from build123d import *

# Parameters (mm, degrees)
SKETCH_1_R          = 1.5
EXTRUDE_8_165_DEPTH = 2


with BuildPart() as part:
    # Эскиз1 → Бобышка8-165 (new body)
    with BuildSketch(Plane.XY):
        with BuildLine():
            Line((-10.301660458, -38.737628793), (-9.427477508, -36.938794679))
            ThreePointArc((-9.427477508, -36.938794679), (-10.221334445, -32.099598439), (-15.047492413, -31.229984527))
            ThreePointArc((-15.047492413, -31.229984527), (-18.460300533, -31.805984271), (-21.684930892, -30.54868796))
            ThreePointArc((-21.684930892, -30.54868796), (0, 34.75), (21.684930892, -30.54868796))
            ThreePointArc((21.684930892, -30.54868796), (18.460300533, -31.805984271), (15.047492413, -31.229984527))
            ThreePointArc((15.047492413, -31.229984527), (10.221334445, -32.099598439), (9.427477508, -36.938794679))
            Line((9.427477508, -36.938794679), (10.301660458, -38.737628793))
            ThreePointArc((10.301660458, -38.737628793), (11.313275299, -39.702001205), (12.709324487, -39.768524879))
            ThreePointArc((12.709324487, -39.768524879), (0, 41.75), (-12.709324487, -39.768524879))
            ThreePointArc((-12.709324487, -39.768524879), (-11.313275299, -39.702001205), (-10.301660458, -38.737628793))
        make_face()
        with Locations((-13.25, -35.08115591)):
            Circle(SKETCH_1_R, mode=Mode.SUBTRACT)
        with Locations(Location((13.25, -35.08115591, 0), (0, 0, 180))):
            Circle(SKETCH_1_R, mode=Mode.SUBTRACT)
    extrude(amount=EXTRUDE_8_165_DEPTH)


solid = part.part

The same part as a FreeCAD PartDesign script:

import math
import FreeCAD as App
import Part
import Sketcher
from FreeCAD import Vector

doc = App.newDocument("Part")
body = doc.addObject("PartDesign::Body", "Body")

sketch1 = body.newObject("Sketcher::SketchObject", "Sketch")
sketch1.AttachmentSupport = (doc.getObject("XY_Plane"), [""])
sketch1.MapMode = "FlatFace"
sketch1.addGeometry([
    Part.LineSegment(Vector(-10.30166, -38.737629, 0), Vector(-9.427478, -36.938795, 0)),
    Part.ArcOfCircle(Part.Circle(Vector(-13.25, -35.081156, 0), Vector(0, 0, 1), 4.25), math.radians(-25.918453), math.radians(115.020303)),
    Part.ArcOfCircle(Part.Circle(Vector(-17.796598, -25.339958, 0), Vector(0, 0, 1), 6.5), math.radians(-126.741447), math.radians(-64.979697)),
    Part.ArcOfCircle(Part.Circle(Vector(0, -1.5, 0), Vector(0, 0, 1), 36.25), math.radians(-53.258553), math.radians(233.258553)),
    Part.ArcOfCircle(Part.Circle(Vector(17.796598, -25.339958, 0), Vector(0, 0, 1), 6.5), math.radians(-115.020303), math.radians(-53.258553)),
    Part.ArcOfCircle(Part.Circle(Vector(13.25, -35.081156, 0), Vector(0, 0, 1), 4.25), math.radians(64.979697), math.radians(205.918453)),
    Part.LineSegment(Vector(9.427478, -36.938795, 0), Vector(10.30166, -38.737629, 0)),
    Part.ArcOfCircle(Part.Circle(Vector(12.100495, -37.863446, 0), Vector(0, 0, 1), 2), math.radians(-154.081548), math.radians(-72.27703)),
    Part.ArcOfCircle(Part.Circle(Vector(0, 0, 0), Vector(0, 0, 1), 41.75), math.radians(-72.27703), math.radians(252.27703)),
    Part.ArcOfCircle(Part.Circle(Vector(-12.100495, -37.863446, 0), Vector(0, 0, 1), 2), math.radians(-107.72297), math.radians(-25.918452)),
    Part.Circle(Vector(-13.25, -35.081156, 0), Vector(0, 0, 1), 1.5),
    Part.Circle(Vector(13.25, -35.081156, 0), Vector(0, 0, 1), 1.5),
], False)
sketch1.addConstraint([
    Sketcher.Constraint("Tangent", 0, 2, 1, 1),
    Sketcher.Constraint("Tangent", 1, 2, 2, 2),
    Sketcher.Constraint("Tangent", 2, 1, 3, 2),
    Sketcher.Constraint("Tangent", 3, 1, 4, 2),
    Sketcher.Constraint("Tangent", 4, 1, 5, 1),
    Sketcher.Constraint("Tangent", 5, 2, 6, 1),
    Sketcher.Constraint("Tangent", 6, 2, 7, 1),
    Sketcher.Constraint("Tangent", 7, 2, 8, 1),
    Sketcher.Constraint("Tangent", 8, 2, 9, 1),
    Sketcher.Constraint("Tangent", 9, 2, 0, 1),
    Sketcher.Constraint("Coincident", 8, 3, -1, 1),
    Sketcher.Constraint("Coincident", 10, 3, 1, 3),
    Sketcher.Constraint("Coincident", 11, 3, 5, 3),
    Sketcher.Constraint("Equal", 2, 4),
    Sketcher.Constraint("Equal", 1, 5),
    Sketcher.Constraint("Equal", 7, 9),
    Sketcher.Constraint("Equal", 10, 11),
    Sketcher.Constraint("Symmetric", 2, 3, 4, 3, -2),
    Sketcher.Constraint("Symmetric", 0, 2, 5, 2, -2),
    Sketcher.Constraint("Diameter", 10, 3.0),
    Sketcher.Constraint("Radius", 7, 2.0),
    Sketcher.Constraint("Radius", 2, 6.5),
    Sketcher.Constraint("Radius", 1, 4.25),
    Sketcher.Constraint("Radius", 3, 36.25),
    Sketcher.Constraint("Radius", 8, 41.75),
    Sketcher.Constraint("Distance", 0, 2.0),
    Sketcher.Constraint("DistanceY", 3, 3, -1, 1, 1.5),
    Sketcher.Constraint("DistanceX", 1, 3, 5, 3, 26.5),
    Sketcher.Constraint("DistanceX", 2, 3, -1, 1, 17.796598),
])
pad1 = body.newObject("PartDesign::Pad", "Pad")
pad1.Profile = sketch1
pad1.Length = 2

doc.recompute()
